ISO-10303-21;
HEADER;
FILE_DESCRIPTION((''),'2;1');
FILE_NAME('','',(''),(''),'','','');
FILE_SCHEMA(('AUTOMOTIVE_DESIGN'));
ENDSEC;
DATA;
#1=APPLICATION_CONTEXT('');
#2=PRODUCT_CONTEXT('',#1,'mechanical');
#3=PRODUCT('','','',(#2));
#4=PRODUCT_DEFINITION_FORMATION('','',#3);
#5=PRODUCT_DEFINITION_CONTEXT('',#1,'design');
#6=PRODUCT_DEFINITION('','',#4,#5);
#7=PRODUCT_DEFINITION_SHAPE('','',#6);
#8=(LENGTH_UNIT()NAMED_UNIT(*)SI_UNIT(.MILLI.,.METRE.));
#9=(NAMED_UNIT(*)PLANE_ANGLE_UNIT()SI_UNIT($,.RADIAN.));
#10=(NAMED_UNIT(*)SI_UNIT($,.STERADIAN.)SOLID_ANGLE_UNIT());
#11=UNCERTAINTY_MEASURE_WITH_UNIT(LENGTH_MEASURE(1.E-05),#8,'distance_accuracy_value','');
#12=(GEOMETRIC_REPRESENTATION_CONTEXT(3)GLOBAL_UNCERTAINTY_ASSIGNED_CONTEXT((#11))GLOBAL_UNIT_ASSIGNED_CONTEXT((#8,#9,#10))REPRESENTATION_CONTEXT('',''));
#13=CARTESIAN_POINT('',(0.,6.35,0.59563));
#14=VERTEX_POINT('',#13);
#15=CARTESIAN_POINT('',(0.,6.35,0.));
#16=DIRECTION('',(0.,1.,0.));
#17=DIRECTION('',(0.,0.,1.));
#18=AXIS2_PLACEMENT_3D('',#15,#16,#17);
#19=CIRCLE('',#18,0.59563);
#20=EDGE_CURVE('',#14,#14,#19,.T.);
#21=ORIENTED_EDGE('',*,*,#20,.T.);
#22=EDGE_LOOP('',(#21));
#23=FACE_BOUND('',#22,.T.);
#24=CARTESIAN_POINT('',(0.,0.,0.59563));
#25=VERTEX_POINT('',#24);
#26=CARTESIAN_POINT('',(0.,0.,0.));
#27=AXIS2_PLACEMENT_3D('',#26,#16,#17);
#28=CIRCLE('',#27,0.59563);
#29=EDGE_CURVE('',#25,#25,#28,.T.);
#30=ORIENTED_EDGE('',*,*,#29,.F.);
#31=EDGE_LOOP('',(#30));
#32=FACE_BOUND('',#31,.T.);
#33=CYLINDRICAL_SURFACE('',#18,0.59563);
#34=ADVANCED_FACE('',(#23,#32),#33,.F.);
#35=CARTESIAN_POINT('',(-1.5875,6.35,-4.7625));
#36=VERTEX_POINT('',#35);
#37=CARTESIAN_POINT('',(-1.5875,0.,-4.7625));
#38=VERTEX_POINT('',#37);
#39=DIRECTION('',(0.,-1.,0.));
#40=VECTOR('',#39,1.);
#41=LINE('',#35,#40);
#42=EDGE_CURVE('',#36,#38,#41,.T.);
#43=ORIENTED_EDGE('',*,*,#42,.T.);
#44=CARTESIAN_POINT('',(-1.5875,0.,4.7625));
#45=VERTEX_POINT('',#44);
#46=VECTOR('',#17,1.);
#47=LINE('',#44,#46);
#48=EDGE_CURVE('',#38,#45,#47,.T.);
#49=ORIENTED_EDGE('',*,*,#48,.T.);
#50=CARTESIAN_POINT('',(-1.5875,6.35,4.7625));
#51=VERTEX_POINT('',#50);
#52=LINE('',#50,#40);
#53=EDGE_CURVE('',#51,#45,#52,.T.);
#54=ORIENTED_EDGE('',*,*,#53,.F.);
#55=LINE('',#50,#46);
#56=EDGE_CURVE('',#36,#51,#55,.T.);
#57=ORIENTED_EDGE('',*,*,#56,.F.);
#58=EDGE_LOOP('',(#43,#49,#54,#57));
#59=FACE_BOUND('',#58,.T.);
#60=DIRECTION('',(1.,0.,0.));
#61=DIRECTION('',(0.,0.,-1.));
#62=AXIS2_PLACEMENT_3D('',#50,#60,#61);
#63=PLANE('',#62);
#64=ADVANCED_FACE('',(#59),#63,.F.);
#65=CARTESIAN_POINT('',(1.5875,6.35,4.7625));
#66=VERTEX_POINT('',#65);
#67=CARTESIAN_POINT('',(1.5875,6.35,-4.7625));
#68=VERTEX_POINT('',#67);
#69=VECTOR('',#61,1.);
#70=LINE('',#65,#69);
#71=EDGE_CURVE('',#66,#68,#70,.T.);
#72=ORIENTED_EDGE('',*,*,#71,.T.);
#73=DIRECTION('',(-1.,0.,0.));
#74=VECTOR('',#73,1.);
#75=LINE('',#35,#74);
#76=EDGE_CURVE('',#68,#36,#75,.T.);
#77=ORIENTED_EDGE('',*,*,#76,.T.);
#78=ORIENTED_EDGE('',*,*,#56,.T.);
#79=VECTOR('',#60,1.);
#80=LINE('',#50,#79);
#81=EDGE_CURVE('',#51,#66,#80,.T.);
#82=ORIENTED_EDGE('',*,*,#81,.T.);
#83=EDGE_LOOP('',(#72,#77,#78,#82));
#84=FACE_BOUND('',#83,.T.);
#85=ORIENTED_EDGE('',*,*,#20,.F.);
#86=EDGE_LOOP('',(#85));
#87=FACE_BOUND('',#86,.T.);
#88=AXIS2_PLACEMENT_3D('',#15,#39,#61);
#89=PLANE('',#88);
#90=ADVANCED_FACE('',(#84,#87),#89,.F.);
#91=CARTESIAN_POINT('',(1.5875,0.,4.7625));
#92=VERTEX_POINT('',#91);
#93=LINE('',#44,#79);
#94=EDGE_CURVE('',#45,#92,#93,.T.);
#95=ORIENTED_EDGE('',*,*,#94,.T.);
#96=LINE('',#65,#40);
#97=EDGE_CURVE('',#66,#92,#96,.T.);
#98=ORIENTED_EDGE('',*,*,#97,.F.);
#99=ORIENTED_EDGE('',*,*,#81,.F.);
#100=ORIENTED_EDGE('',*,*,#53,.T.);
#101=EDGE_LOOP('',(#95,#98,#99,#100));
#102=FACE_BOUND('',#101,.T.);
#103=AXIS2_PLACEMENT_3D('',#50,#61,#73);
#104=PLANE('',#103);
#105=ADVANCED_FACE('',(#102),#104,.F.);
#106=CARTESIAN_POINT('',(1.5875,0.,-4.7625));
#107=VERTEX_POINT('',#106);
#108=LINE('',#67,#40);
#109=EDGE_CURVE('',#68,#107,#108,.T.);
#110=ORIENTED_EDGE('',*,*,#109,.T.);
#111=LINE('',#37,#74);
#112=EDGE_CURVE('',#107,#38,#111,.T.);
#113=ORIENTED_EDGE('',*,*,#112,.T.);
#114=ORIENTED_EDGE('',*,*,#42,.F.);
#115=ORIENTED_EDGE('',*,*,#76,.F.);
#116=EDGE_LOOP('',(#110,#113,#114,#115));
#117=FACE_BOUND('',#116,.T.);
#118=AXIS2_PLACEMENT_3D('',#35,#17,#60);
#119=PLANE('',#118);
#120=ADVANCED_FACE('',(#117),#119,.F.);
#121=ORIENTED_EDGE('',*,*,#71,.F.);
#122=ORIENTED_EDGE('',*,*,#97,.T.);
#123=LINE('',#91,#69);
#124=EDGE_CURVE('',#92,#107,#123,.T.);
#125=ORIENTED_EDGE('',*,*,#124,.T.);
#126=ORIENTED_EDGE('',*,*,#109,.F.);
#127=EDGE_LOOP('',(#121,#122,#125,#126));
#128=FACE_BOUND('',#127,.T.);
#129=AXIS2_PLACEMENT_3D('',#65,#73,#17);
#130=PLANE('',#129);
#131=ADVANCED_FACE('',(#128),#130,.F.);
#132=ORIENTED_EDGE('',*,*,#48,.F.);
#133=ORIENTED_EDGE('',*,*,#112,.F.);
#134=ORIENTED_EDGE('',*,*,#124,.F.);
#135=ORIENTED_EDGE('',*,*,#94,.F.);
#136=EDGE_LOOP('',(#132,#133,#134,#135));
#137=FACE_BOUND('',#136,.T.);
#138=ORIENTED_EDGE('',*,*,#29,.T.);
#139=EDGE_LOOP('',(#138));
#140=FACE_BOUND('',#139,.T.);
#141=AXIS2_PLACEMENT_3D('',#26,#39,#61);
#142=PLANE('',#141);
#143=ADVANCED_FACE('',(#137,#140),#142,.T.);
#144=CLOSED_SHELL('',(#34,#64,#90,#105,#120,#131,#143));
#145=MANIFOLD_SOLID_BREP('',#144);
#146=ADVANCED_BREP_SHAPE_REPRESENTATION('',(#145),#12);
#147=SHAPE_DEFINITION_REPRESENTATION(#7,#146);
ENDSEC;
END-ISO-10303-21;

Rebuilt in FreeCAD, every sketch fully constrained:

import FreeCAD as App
import Part
import Sketcher
from FreeCAD import Vector
Q = App.Units.Quantity


def add_polygon(sketch, points):
    """Adds a closed chain of lines whose ends are joined by coincident constraints."""
    first, n = sketch.GeometryCount, len(points)
    for a, b in zip(points, points[1:] + points[:1]):
        sketch.addGeometry(Part.LineSegment(App.Vector(*a, 0), App.Vector(*b, 0)), False)
    for i in range(n):
        sketch.addConstraint(Sketcher.Constraint("Coincident", first + i, 2, first + (i + 1) % n, 1))

doc = App.newDocument("Part")
body = doc.addObject("PartDesign::Body", "Body")

sketch1 = body.newObject("Sketcher::SketchObject", "Sketch")
sketch1.AttachmentSupport = (doc.getObject("XZ_Plane"), [""])
sketch1.MapMode = "FlatFace"
add_polygon(sketch1, [(-1.5875, -4.7625), (-1.5875, 4.7625), (1.5875, 4.7625), (1.5875, -4.7625)])
sketch1.addConstraint(Sketcher.Constraint("Vertical", 0))
sketch1.addConstraint(Sketcher.Constraint("Horizontal", 1))
sketch1.addConstraint(Sketcher.Constraint("Vertical", 2))
sketch1.addConstraint(Sketcher.Constraint("Horizontal", 3))
sketch1.addConstraint(Sketcher.Constraint("Symmetric", 0, 2, 2, 2, -1, 1))
sketch1.addConstraint(Sketcher.Constraint("DistanceX", 1, 1, 1, 2, Q("0.125 in")))
sketch1.addConstraint(Sketcher.Constraint("DistanceY", 0, 1, 0, 2, Q("0.375 in")))
pad1 = body.newObject("PartDesign::Pad", "Pad")
pad1.Profile = sketch1
pad1.Length = Q("0.25 in")
pad1.Reversed = True

sketch2 = body.newObject("Sketcher::SketchObject", "Sketch001")
sketch2.AttachmentSupport = (doc.getObject("XZ_Plane"), [""])
sketch2.MapMode = "FlatFace"
sketch2.AttachmentOffset = App.Placement(Vector(0, 0, -0.25 * 25.4), App.Rotation())
sketch2.addGeometry(Part.Circle(Vector(0, 0, 0), Vector(0, 0, 1), 0.59563), False)
sketch2.addConstraint(Sketcher.Constraint("Coincident", 0, 3, -1, 1))
sketch2.addConstraint(Sketcher.Constraint("Diameter", 0, Q("0.0469 in")))
doc.recompute()
hole = body.newObject("PartDesign::Hole", "Hole")
hole.Profile = sketch2
hole.ThreadType = "None"
hole.Diameter = Q("0.0469 in")
hole.DepthType = "ThroughAll"
hole.Reversed = True

doc.recompute()
